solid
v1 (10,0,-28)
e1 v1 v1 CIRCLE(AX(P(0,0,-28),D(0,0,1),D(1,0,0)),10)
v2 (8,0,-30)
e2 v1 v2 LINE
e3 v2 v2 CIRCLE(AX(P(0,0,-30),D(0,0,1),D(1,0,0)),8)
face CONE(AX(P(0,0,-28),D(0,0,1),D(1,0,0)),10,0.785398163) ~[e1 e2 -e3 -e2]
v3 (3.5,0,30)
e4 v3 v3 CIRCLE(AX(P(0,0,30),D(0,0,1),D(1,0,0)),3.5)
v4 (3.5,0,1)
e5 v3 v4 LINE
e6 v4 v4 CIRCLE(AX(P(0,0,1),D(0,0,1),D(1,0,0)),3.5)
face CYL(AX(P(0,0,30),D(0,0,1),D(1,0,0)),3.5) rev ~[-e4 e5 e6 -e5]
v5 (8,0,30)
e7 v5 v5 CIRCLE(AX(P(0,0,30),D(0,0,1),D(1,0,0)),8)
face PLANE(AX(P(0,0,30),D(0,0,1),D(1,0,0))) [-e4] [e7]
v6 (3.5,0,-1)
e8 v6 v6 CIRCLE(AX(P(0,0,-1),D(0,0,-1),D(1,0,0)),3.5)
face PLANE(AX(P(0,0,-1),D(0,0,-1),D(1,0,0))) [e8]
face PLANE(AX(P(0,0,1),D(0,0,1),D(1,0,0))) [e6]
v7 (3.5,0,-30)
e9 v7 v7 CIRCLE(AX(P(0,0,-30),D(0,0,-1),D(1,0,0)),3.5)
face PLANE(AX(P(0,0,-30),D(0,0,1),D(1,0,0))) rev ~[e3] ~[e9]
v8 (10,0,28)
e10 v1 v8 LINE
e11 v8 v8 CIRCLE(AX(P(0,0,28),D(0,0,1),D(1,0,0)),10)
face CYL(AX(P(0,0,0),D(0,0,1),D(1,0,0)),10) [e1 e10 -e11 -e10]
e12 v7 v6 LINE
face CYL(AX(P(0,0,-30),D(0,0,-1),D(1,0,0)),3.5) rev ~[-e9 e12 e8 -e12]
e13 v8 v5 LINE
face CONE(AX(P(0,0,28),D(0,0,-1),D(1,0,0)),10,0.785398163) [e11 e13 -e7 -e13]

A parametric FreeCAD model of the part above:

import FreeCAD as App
import Part
import Sketcher

V = App.Vector


def edges_at(feature, points):
    """Names of the edges that pass closest to the given points."""
    edges = feature.Shape.Edges
    near = lambda p: min(range(len(edges)), key=lambda i: edges[i].distToShape(Part.Vertex(*p))[0])
    return sorted({f"Edge{near(p) + 1}" for p in points})

doc = App.newDocument("Part")
body = doc.addObject("PartDesign::Body", "Body")

sketch1 = body.newObject("Sketcher::SketchObject", "Sketch")
sketch1.AttachmentSupport = (doc.getObject("XY_Plane"), [""])
sketch1.MapMode = "FlatFace"
sketch1.addGeometry(Part.Circle(V(0, 0, 0), V(0, 0, 1), 10), False)
sketch1.addConstraint([
    Sketcher.Constraint("Coincident", 0, 3, -1, 1),
    Sketcher.Constraint("Diameter", 0, 20.0),
])
pad1 = body.newObject("PartDesign::Pad", "Pad")
pad1.Profile = sketch1
pad1.Length = 60
pad1.Midplane = True

sketch2 = body.newObject("Sketcher::SketchObject", "Sketch001")
sketch2.AttachmentSupport = (doc.getObject("XY_Plane"), [""])
sketch2.MapMode = "FlatFace"
sketch2.AttachmentOffset = App.Placement(V(0, 0, -30), App.Rotation())
sketch2.addGeometry(Part.Circle(V(0, 0, 0), V(0, 0, 1), 3.5), False)
sketch2.addConstraint([
    Sketcher.Constraint("Coincident", 0, 3, -1, 1),
    Sketcher.Constraint("Diameter", 0, 7.0),
])
pocket1 = body.newObject("PartDesign::Pocket", "Pocket")
pocket1.Profile = sketch2
pocket1.Length = 29
pocket1.Reversed = True

sketch3 = body.newObject("Sketcher::SketchObject", "Sketch002")
sketch3.AttachmentSupport = (doc.getObject("XY_Plane"), [""])
sketch3.MapMode = "FlatFace"
sketch3.AttachmentOffset = App.Placement(V(0, 0, 30), App.Rotation())
sketch3.addGeometry(Part.Circle(V(0, 0, 0), V(0, 0, 1), 3.5), False)
sketch3.addConstraint([
    Sketcher.Constraint("Coincident", 0, 3, -1, 1),
    Sketcher.Constraint("Diameter", 0, 7.0),
])
pocket2 = body.newObject("PartDesign::Pocket", "Pocket001")
pocket2.Profile = sketch3
pocket2.Length = 29
doc.recompute()

chamfer = body.newObject("PartDesign::Chamfer", "Chamfer")
chamfer.Base = (pocket2, edges_at(pocket2, [(-10, 0, 30), (-10, 0, -30)]))
chamfer.Size = 2

doc.recompute()
